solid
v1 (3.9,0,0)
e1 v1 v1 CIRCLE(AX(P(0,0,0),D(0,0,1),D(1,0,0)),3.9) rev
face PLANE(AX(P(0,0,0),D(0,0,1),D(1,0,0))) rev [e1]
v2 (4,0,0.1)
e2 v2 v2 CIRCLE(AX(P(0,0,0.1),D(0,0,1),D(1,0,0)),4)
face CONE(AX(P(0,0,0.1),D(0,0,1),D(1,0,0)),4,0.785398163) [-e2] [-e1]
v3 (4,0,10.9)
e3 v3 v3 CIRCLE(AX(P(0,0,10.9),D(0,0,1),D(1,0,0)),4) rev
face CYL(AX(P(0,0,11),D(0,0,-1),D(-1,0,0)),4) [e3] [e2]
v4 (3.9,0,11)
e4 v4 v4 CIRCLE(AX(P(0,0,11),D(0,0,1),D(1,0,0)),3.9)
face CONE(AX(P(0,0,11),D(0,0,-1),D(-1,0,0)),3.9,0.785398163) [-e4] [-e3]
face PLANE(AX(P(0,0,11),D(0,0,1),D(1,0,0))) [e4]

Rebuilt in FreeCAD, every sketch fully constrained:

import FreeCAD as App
import Part
import Sketcher

V = App.Vector


def edges_at(feature, points):
    """Names of the edges that pass closest to the given points."""
    edges = feature.Shape.Edges
    near = lambda p: min(range(len(edges)), key=lambda i: edges[i].distToShape(Part.Vertex(*p))[0])
    return sorted({f"Edge{near(p) + 1}" for p in points})

doc = App.newDocument("Part")
body = doc.addObject("PartDesign::Body", "Body")

sketch1 = doc.addObject("Sketcher::SketchObject", "Sketch")
body.addObject(sketch1)
sketch1.AttachmentSupport = (doc.XY_Plane, [""])
sketch1.MapMode = "FlatFace"
sketch1.addGeometry(Part.Circle(V(0, 0, 0), V(0, 0, 1), 4), False)
sketch1.addConstraint(Sketcher.Constraint("Coincident", 0, 3, -1, 1))
sketch1.addConstraint(Sketcher.Constraint("Diameter", 0, 8.0))
pad1 = doc.addObject("PartDesign::Pad", "Pad")
body.addObject(pad1)
pad1.Profile = sketch1
pad1.Length = 11
doc.recompute()

chamfer = doc.addObject("PartDesign::Chamfer", "Chamfer")
body.addObject(chamfer)
chamfer.Base = (pad1, edges_at(pad1, [(-4, 0, 0), (-4, 0, 11)]))
chamfer.Size = 0.1

doc.recompute()
